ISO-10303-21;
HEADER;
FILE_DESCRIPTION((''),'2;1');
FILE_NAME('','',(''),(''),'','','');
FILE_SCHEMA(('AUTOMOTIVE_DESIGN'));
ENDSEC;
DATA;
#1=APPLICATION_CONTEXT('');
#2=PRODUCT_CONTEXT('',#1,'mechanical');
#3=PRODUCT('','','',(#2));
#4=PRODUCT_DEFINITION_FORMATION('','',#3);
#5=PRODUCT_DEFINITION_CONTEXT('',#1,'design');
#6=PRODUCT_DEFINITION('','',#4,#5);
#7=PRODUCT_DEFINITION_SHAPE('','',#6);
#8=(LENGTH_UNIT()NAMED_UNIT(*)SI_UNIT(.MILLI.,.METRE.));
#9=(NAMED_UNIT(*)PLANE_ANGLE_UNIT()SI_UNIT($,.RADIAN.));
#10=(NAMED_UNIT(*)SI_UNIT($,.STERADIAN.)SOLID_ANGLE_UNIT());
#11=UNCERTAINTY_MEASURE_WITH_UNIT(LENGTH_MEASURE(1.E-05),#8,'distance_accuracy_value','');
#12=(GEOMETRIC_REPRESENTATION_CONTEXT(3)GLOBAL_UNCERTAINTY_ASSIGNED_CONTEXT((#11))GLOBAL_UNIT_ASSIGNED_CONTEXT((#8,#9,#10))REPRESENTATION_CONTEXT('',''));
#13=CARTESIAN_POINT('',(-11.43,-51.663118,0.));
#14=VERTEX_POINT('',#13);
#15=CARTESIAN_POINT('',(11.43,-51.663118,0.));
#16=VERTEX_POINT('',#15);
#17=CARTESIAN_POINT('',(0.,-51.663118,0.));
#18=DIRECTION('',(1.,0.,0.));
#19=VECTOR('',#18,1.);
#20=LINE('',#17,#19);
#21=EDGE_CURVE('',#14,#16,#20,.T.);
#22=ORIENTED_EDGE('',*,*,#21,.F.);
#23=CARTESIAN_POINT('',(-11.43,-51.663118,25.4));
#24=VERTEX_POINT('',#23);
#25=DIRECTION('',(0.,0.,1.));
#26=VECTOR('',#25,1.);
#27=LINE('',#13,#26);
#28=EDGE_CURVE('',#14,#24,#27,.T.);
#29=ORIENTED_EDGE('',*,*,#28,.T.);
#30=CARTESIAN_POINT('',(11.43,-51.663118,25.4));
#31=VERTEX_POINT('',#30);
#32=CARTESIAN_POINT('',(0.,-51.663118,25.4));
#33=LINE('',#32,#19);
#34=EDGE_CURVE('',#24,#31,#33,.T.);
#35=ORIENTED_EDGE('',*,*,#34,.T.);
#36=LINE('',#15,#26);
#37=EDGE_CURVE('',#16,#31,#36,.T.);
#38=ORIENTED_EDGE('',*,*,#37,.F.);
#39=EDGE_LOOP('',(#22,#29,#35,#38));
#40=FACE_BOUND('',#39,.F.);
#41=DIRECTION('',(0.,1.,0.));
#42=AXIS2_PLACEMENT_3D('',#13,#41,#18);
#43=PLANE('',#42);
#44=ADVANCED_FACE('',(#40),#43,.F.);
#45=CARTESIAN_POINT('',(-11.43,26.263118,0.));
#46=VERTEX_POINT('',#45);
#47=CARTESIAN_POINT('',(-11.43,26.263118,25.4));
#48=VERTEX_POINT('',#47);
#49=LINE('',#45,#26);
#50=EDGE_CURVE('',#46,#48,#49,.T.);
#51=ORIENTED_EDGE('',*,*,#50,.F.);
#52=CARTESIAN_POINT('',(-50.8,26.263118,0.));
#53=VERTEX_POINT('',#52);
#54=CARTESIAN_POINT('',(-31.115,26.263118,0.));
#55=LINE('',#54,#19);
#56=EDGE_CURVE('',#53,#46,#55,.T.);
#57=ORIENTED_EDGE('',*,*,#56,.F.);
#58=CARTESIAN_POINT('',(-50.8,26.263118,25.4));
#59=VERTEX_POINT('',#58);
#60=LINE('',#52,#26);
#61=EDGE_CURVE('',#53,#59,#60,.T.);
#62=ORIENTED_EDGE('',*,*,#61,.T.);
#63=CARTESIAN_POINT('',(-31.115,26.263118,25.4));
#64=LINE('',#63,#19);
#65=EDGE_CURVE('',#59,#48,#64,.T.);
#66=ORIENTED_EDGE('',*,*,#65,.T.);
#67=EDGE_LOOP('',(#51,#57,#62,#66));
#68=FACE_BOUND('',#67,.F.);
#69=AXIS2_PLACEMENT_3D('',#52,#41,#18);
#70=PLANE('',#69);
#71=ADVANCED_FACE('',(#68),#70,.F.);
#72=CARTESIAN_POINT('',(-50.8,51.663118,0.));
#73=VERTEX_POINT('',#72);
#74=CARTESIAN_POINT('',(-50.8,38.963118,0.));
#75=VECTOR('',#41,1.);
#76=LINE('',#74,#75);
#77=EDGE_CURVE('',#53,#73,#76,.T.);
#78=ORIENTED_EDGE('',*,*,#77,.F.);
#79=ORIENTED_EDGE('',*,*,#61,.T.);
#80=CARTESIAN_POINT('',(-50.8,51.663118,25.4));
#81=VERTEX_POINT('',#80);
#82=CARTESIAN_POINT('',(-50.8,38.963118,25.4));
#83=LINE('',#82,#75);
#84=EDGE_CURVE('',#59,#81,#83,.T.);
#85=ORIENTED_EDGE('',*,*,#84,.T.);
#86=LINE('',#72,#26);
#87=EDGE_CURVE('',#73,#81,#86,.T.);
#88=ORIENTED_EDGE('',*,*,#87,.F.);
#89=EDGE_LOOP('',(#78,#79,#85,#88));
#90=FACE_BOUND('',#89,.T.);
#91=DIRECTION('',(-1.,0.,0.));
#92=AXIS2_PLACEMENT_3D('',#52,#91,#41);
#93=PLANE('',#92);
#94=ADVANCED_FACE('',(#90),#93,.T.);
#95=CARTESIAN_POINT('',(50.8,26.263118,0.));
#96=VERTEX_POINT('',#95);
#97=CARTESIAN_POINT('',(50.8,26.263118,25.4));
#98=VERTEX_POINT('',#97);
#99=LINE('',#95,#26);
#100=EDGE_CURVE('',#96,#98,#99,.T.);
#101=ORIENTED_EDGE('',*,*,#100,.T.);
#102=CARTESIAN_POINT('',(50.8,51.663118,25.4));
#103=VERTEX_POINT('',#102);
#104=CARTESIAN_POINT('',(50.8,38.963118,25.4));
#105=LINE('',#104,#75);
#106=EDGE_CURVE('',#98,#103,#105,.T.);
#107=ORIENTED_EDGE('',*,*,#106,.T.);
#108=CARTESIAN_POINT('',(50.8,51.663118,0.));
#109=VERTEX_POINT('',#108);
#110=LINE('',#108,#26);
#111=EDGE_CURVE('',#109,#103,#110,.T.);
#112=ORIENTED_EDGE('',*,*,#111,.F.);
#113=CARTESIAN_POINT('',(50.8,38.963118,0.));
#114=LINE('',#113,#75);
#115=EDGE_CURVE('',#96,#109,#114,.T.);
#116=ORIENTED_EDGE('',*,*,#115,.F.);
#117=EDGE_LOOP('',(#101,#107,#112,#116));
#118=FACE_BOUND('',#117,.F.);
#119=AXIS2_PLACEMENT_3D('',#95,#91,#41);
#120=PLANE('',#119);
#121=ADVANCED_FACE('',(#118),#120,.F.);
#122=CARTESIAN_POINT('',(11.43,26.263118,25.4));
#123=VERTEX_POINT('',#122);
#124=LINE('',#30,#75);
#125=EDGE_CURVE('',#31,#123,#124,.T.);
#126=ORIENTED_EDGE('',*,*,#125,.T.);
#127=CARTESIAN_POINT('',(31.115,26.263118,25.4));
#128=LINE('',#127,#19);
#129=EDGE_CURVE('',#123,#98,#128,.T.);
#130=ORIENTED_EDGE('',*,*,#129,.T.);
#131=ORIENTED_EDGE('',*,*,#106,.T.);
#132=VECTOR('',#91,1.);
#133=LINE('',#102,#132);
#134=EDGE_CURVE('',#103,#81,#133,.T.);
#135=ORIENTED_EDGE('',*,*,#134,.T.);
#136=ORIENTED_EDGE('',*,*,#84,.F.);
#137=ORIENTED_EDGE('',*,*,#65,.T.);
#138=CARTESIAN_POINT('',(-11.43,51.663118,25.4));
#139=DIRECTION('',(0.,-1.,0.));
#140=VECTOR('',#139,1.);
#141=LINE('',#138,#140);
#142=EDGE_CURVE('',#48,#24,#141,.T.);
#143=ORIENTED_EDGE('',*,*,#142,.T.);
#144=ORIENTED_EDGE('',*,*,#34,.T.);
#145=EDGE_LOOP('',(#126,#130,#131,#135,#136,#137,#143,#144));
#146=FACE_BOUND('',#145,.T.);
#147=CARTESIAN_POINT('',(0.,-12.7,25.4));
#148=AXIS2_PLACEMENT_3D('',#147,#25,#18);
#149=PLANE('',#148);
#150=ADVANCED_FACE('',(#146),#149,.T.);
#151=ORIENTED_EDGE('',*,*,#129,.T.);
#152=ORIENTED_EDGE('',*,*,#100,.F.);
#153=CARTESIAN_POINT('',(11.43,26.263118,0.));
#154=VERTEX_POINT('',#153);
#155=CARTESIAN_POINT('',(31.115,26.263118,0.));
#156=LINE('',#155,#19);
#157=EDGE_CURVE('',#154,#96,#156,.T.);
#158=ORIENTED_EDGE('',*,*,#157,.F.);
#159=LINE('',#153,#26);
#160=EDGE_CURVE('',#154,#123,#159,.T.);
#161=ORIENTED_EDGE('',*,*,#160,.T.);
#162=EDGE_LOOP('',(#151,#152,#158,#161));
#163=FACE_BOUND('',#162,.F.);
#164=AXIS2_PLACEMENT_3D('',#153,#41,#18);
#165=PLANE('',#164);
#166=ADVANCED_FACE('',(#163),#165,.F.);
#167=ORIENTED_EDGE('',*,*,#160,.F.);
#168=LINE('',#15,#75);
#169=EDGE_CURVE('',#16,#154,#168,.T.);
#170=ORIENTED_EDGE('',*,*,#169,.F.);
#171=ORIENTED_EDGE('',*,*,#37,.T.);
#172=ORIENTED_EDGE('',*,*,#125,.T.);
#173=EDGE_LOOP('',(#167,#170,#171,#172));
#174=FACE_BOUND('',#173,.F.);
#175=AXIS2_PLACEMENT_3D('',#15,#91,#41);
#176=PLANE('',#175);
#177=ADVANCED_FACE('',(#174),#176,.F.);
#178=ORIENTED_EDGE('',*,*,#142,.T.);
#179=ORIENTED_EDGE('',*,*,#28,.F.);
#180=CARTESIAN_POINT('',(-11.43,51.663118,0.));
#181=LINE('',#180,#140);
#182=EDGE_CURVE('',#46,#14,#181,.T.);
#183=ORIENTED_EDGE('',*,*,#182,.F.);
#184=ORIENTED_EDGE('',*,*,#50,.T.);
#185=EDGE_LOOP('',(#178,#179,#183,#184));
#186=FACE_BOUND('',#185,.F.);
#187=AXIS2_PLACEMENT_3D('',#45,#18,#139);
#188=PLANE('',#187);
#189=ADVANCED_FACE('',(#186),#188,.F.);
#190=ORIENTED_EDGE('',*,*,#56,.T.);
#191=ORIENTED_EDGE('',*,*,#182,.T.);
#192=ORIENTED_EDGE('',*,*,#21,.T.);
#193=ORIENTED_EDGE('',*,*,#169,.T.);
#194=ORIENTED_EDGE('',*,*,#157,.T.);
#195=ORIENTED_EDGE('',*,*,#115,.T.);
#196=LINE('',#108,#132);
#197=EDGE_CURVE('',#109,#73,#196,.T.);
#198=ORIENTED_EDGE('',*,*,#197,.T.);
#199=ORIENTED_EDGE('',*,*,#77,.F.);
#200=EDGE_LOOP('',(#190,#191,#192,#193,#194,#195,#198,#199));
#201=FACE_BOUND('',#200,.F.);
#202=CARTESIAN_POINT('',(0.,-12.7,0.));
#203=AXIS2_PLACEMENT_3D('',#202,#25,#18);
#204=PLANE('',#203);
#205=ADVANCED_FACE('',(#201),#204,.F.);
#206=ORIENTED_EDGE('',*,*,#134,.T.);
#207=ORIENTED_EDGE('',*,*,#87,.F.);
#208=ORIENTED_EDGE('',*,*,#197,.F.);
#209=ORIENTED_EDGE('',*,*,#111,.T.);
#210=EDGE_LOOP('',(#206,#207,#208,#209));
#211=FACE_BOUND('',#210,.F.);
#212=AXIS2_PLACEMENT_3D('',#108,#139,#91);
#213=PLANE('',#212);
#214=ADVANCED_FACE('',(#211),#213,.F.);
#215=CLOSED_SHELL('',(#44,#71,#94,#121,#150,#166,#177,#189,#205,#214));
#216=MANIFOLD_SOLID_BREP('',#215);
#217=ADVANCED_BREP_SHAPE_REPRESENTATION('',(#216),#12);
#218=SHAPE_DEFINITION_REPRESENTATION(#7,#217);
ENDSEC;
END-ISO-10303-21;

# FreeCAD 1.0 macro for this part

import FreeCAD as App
import Part
import Sketcher
Q = App.Units.Quantity

doc = App.newDocument("Part")
body = doc.addObject("PartDesign::Body", "Body")

# Sketch on XY plane
sketch1 = doc.addObject("Sketcher::SketchObject", "Sketch")
body.addObject(sketch1)
sketch1.AttachmentSupport = (doc.XY_Plane, [""])
sketch1.MapMode = "FlatFace"
sketch1.addGeometry([
    Part.LineSegment(App.Vector(-11, -52, 0), App.Vector(11, -52, 0)),  # 0
    Part.LineSegment(App.Vector(11, -52, 0), App.Vector(11, 26, 0)),  # 1
    Part.LineSegment(App.Vector(11, 26, 0), App.Vector(51, 26, 0)),  # 2
    Part.LineSegment(App.Vector(51, 26, 0), App.Vector(51, 52, 0)),  # 3
    Part.LineSegment(App.Vector(51, 52, 0), App.Vector(-51, 52, 0)),  # 4
    Part.LineSegment(App.Vector(-51, 52, 0), App.Vector(-51, 26, 0)),  # 5
    Part.LineSegment(App.Vector(-51, 26, 0), App.Vector(-11, 26, 0)),  # 6
    Part.LineSegment(App.Vector(-11, 26, 0), App.Vector(-11, -52, 0)),  # 7
], False)
sketch1.addConstraint([
    Sketcher.Constraint("Coincident", 0, 2, 1, 1),
    Sketcher.Constraint("Coincident", 1, 2, 2, 1),
    Sketcher.Constraint("Coincident", 2, 2, 3, 1),
    Sketcher.Constraint("Coincident", 3, 2, 4, 1),
    Sketcher.Constraint("Coincident", 4, 2, 5, 1),
    Sketcher.Constraint("Coincident", 5, 2, 6, 1),
    Sketcher.Constraint("Coincident", 6, 2, 7, 1),
    Sketcher.Constraint("Coincident", 7, 2, 0, 1),
    Sketcher.Constraint("Horizontal", 0),
    Sketcher.Constraint("Vertical", 1),
    Sketcher.Constraint("Horizontal", 2),
    Sketcher.Constraint("Vertical", 3),
    Sketcher.Constraint("Horizontal", 4),
    Sketcher.Constraint("Vertical", 5),
    Sketcher.Constraint("Horizontal", 6),
    Sketcher.Constraint("Vertical", 7),
    Sketcher.Constraint("Symmetric", 2, 2, 5, 2, -2),
    Sketcher.Constraint("Equal", 2, 6),
    Sketcher.Constraint("DistanceX", 4, 2, 4, 1, Q("4 in")),
    Sketcher.Constraint("DistanceY", 3, 1, 3, 2, Q("1 in")),
    Sketcher.Constraint("DistanceX", 0, 1, 0, 2, Q("0.9 in")),
    Sketcher.Constraint("DistanceY", 1, 1, 1, 2, Q("77.926236 mm")),
    Sketcher.Constraint("DistanceY", 0, 2, -1, 1, Q("51.663118 mm")),
])
pad1 = doc.addObject("PartDesign::Pad", "Pad")
body.addObject(pad1)
pad1.Profile = sketch1
pad1.Length = Q("1 in")

doc.recompute()
